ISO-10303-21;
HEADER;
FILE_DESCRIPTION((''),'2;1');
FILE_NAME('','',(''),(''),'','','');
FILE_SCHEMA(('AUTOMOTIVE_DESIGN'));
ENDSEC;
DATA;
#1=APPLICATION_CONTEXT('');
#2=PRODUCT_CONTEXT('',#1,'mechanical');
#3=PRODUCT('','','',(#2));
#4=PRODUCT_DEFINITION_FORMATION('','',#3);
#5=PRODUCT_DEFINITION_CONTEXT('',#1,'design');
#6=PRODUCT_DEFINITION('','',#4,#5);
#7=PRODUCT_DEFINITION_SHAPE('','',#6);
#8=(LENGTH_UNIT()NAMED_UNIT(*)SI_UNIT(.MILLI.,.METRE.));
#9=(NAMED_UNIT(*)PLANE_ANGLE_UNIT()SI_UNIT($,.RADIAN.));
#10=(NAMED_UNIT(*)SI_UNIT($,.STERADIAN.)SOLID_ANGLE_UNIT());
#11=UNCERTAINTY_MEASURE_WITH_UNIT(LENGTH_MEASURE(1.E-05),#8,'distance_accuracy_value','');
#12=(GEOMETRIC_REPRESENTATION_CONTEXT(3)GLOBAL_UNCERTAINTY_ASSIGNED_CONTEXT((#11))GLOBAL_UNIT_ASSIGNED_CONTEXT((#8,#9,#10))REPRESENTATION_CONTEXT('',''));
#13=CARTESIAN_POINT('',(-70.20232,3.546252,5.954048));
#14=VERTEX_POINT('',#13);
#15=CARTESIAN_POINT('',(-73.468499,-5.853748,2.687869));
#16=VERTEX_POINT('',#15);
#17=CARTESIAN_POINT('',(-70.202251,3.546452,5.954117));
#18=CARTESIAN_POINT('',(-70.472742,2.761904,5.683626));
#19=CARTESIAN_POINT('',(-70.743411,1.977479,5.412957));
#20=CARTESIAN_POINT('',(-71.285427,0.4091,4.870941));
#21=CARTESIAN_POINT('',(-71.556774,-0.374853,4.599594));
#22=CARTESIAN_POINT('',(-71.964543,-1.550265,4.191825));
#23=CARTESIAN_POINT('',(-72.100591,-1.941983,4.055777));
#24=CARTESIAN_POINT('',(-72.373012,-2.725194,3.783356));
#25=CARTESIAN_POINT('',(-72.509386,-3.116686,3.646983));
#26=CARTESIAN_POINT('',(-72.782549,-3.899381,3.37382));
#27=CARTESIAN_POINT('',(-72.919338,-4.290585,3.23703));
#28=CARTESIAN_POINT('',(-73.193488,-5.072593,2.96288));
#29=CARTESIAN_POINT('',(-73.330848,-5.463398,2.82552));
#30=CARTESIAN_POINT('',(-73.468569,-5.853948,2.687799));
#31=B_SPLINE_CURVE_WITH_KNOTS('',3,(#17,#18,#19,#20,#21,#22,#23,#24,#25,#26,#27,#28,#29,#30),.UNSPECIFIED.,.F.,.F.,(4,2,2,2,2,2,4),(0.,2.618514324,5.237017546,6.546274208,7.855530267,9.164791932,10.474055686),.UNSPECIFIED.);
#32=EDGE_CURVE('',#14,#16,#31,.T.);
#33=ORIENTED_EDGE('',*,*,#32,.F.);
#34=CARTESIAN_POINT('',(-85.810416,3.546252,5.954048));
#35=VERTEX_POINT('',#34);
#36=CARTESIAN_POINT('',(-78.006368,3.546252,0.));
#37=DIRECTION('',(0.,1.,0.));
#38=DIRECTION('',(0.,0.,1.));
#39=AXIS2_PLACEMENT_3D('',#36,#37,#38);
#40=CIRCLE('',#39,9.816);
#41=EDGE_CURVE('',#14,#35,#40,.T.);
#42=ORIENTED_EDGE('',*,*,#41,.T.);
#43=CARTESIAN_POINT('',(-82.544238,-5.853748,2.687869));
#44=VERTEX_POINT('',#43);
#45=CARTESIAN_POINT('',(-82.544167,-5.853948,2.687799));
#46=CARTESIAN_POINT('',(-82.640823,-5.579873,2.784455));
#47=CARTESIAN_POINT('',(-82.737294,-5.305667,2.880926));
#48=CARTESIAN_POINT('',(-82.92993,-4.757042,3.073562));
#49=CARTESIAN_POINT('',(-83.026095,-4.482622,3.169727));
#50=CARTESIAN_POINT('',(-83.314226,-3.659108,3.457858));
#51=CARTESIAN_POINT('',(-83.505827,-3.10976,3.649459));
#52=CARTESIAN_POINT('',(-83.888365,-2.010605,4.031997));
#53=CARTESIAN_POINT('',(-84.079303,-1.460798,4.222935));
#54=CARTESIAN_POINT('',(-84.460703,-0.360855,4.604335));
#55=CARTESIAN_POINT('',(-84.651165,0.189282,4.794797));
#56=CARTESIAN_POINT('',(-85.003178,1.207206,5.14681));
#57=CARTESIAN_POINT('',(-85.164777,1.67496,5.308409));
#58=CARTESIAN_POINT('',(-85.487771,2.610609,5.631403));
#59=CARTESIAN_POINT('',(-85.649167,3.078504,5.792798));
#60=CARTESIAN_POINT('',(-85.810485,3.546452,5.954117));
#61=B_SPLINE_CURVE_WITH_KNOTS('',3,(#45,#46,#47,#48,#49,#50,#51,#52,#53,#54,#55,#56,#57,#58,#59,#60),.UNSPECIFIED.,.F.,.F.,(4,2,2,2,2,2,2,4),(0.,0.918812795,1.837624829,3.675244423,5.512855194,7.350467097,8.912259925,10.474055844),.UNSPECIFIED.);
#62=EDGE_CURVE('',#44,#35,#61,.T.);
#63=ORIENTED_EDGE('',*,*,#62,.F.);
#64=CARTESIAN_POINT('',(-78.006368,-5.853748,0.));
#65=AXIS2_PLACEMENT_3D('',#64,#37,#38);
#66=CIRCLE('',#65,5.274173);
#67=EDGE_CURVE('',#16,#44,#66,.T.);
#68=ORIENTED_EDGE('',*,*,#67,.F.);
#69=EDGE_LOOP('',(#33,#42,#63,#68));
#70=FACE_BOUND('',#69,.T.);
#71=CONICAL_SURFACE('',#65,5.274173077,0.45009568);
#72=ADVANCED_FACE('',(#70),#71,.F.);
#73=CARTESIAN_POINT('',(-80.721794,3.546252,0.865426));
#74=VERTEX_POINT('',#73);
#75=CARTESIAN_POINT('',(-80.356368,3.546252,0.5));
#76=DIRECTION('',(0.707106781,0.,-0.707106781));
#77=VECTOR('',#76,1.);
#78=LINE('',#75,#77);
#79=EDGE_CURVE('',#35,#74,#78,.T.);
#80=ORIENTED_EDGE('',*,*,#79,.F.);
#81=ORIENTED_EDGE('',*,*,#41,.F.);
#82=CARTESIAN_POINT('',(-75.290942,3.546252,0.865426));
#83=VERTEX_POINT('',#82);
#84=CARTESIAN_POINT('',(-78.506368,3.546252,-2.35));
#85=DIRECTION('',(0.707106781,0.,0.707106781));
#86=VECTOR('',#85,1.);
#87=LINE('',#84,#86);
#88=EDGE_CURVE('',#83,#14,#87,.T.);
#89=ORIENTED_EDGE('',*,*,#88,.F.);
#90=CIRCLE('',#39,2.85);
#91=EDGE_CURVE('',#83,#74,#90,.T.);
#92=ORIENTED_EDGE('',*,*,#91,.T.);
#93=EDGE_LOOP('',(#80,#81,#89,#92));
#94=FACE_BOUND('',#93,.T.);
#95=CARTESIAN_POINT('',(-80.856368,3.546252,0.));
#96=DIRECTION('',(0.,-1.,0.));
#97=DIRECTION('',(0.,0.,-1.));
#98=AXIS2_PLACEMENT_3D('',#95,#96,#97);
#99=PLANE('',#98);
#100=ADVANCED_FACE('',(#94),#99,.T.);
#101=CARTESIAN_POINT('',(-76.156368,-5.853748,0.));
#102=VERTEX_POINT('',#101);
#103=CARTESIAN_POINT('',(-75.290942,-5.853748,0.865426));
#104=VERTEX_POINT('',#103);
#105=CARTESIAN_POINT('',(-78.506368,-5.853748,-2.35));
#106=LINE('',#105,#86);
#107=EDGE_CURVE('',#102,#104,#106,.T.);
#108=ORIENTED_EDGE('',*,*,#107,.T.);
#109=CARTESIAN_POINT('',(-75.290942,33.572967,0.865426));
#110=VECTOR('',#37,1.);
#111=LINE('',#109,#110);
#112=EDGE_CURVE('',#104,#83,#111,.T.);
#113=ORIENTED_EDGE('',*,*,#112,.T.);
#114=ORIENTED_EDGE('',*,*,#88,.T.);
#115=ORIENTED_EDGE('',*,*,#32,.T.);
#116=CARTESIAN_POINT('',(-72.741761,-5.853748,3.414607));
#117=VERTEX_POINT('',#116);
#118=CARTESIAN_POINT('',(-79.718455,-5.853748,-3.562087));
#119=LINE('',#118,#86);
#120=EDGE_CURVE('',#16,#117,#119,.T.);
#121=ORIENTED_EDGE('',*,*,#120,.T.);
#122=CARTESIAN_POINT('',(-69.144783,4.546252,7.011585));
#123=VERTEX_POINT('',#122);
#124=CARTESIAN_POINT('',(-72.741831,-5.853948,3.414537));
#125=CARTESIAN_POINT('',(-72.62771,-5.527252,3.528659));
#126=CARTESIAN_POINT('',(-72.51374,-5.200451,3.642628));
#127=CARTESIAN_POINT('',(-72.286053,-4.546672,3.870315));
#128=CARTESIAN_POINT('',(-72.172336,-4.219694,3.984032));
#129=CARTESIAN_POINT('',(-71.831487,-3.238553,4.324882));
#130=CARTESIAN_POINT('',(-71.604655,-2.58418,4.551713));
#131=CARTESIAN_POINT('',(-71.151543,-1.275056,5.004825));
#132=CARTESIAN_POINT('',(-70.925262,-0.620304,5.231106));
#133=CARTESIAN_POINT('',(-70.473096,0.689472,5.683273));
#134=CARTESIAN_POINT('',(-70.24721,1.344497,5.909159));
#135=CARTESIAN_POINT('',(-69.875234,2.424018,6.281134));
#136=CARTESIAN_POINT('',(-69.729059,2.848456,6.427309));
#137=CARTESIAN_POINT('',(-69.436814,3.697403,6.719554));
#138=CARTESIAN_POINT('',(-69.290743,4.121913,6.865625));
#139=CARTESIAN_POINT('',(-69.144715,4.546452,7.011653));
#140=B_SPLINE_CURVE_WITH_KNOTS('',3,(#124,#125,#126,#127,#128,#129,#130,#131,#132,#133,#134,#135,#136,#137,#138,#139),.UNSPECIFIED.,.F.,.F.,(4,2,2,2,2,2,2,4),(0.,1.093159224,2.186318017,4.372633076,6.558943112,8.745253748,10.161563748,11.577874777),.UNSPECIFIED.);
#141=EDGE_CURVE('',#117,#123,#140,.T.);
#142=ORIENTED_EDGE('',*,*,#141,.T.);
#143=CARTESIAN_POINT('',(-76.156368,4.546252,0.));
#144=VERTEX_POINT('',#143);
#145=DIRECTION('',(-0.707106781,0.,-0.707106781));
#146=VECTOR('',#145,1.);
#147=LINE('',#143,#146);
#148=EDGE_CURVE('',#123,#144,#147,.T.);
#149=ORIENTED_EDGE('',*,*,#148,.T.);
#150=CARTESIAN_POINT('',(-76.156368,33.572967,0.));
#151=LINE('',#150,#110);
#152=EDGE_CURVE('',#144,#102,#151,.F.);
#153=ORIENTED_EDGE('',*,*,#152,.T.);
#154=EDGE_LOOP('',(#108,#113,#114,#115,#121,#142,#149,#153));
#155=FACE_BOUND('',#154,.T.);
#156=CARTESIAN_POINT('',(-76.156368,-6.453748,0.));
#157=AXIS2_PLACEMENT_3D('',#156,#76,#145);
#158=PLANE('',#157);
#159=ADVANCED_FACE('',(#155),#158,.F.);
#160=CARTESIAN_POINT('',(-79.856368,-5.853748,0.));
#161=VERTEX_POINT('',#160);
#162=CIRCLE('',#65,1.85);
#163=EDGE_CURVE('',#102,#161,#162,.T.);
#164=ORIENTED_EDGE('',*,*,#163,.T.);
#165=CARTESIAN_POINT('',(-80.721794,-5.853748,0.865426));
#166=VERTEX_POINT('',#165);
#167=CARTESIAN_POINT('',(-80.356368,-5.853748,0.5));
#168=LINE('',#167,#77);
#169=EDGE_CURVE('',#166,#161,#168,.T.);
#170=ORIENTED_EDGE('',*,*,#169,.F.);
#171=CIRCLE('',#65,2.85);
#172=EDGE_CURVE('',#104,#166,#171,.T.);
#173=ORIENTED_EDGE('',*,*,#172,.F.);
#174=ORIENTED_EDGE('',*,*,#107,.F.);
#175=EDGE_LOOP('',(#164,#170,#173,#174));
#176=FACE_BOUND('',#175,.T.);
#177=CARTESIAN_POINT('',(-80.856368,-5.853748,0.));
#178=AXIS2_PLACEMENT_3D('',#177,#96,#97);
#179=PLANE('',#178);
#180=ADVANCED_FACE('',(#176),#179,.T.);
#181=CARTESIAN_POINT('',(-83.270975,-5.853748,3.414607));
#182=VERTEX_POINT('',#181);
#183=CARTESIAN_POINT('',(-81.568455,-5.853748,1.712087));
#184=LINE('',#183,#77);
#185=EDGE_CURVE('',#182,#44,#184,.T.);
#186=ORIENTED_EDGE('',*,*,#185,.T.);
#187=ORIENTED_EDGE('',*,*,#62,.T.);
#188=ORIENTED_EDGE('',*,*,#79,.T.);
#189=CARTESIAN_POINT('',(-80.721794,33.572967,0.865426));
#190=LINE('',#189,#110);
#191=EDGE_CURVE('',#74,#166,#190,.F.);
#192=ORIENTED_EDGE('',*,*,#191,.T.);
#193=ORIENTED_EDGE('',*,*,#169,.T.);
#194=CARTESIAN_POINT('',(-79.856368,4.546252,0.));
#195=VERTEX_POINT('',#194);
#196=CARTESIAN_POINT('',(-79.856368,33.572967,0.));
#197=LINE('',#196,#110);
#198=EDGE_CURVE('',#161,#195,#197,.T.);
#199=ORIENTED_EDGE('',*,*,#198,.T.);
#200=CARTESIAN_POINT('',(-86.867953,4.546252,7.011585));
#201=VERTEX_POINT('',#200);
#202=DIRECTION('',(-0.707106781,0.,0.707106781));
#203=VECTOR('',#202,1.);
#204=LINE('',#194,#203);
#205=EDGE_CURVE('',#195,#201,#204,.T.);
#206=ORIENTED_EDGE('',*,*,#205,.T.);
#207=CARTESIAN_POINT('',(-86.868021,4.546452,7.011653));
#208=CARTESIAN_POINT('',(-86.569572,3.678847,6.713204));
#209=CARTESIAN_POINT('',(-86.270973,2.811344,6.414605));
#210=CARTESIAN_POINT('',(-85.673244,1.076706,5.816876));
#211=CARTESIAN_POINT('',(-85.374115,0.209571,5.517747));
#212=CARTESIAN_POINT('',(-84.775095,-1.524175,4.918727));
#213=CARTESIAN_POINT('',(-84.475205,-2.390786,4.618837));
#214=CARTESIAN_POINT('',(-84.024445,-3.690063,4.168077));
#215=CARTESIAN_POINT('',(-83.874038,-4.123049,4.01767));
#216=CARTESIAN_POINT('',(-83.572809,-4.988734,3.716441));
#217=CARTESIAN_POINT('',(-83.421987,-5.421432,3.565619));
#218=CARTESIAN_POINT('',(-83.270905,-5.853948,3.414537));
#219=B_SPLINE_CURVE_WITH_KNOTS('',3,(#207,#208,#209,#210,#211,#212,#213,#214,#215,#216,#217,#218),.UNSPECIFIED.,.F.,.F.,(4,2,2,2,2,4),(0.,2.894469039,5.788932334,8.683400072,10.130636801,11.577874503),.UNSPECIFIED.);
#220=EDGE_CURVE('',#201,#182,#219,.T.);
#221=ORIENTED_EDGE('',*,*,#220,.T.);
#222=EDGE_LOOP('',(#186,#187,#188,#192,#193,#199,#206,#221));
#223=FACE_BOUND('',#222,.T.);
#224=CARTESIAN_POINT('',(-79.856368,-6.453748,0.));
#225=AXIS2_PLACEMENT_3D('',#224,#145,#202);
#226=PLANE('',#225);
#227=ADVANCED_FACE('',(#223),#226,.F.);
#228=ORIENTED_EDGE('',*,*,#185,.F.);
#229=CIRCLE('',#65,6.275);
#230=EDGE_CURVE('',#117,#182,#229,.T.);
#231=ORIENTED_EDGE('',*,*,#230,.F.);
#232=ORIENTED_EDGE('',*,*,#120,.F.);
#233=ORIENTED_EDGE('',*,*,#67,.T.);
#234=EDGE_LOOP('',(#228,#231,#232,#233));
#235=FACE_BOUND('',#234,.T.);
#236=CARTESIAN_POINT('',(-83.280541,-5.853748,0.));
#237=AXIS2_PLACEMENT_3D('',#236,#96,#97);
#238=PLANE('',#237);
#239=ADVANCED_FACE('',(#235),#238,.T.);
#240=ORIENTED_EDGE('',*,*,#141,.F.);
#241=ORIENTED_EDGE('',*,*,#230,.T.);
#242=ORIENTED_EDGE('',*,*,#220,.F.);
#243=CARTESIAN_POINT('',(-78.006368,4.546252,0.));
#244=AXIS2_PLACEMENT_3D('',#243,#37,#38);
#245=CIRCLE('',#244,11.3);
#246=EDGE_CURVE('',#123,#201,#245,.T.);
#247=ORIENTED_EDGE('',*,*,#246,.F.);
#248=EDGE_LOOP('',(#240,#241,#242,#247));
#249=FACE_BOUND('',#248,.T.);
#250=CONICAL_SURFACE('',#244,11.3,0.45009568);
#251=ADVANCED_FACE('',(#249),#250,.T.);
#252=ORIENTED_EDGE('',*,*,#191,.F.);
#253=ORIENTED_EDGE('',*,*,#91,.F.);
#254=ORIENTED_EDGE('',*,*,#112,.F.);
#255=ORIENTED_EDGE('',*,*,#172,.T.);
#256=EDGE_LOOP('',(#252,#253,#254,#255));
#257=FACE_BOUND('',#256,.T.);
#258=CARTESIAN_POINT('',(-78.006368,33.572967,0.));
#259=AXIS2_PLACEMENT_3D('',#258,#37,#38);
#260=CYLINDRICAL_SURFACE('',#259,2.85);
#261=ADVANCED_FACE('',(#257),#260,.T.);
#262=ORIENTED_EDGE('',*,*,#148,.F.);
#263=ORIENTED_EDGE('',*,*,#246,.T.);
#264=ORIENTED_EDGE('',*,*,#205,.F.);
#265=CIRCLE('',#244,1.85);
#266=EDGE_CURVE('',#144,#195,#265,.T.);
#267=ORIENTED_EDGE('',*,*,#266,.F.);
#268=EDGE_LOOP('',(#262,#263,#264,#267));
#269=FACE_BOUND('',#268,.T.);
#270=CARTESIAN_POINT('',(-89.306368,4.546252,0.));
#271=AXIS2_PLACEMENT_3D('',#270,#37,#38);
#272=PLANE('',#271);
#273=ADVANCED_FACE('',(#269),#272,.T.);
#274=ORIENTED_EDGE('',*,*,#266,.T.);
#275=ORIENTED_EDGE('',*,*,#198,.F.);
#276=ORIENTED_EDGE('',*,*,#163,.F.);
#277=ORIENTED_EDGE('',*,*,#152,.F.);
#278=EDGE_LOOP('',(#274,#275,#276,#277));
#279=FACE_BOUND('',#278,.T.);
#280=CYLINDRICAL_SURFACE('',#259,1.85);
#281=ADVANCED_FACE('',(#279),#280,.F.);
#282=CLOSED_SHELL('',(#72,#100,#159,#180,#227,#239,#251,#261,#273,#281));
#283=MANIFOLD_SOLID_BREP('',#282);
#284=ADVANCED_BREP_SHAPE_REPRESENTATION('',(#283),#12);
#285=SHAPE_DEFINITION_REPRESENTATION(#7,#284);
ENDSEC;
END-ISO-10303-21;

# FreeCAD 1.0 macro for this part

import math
import FreeCAD as App
import Part
import Sketcher
from FreeCAD import Vector

doc = App.newDocument("Part")
body = doc.addObject("PartDesign::Body", "Body")

sketch1 = body.newObject("Sketcher::SketchObject", "Sketch")
sketch1.AttachmentSupport = (doc.getObject("XY_Plane"), [""])
sketch1.MapMode = "FlatFace"
sketch1.addGeometry([
    Part.LineSegment(Vector(-89.306368, 4.546252, 0), Vector(-84.281368, -5.853748, 0)),
    Part.LineSegment(Vector(-84.281368, -5.853748, 0), Vector(-83.280541, -5.853748, 0)),
    Part.LineSegment(Vector(-83.280541, -5.853748, 0), Vector(-87.822368, 3.546252, 0)),
    Part.LineSegment(Vector(-87.822368, 3.546252, 0), Vector(-80.856368, 3.546252, 0)),
    Part.LineSegment(Vector(-80.856368, 3.546252, 0), Vector(-80.856368, -5.853748, 0)),
    Part.LineSegment(Vector(-80.856368, -5.853748, 0), Vector(-79.856368, -5.853748, 0)),
    Part.LineSegment(Vector(-79.856368, -5.853748, 0), Vector(-79.856368, 4.546252, 0)),
    Part.LineSegment(Vector(-79.856368, 4.546252, 0), Vector(-89.306368, 4.546252, 0)),
], False)
sketch1.addGeometry(Part.LineSegment(Vector(-78.006368, 4.546252, 0), Vector(-78.006368, -5.853748, 0)), True)
sketch1.addConstraint([
    Sketcher.Constraint("Coincident", 0, 2, 1, 1),
    Sketcher.Constraint("Coincident", 1, 2, 2, 1),
    Sketcher.Constraint("Coincident", 2, 2, 3, 1),
    Sketcher.Constraint("Coincident", 3, 2, 4, 1),
    Sketcher.Constraint("Coincident", 4, 2, 5, 1),
    Sketcher.Constraint("Coincident", 5, 2, 6, 1),
    Sketcher.Constraint("Coincident", 6, 2, 7, 1),
    Sketcher.Constraint("Coincident", 7, 2, 0, 1),
    Sketcher.Constraint("Horizontal", 1),
    Sketcher.Constraint("Horizontal", 3),
    Sketcher.Constraint("Vertical", 4),
    Sketcher.Constraint("Horizontal", 5),
    Sketcher.Constraint("Vertical", 6),
    Sketcher.Constraint("Horizontal", 7),
    Sketcher.Constraint("Vertical", 8),
    Sketcher.Constraint("Parallel", 0, 2),
    Sketcher.Constraint("Horizontal", 1, 2, 4, 2),
    Sketcher.Constraint("Horizontal", 7, 2, 8, 1),
    Sketcher.Constraint("Horizontal", 5, 2, 8, 2),
    Sketcher.Constraint("DistanceX", 5, 1, 5, 2, 1.0),
    Sketcher.Constraint("DistanceY", 4, 2, 4, 1, 9.4),
    Sketcher.Constraint("DistanceY", 6, 1, 6, 2, 10.4),
    Sketcher.Constraint("DistanceX", 7, 2, 7, 1, 9.45),
    Sketcher.Constraint("DistanceX", 3, 1, 3, 2, 6.966),
    Sketcher.Constraint("DistanceX", 6, 2, 8, 1, 1.85),
    Sketcher.Constraint("DistanceX", 2, 2, 0, 2, 3.541),
    Sketcher.Constraint("DistanceX", 0, 2, -1, 1, 84.281368),
    Sketcher.Constraint("DistanceY", 0, 2, -1, 1, 5.853748),
])
revolution = body.newObject("PartDesign::Revolution", "Revolution")
revolution.Profile = sketch1
revolution.ReferenceAxis = (sketch1, ["Axis0"])
revolution.Angle = 360

sketch2 = body.newObject("Sketcher::SketchObject", "Sketch001")
sketch2.AttachmentSupport = (doc.getObject("XZ_Plane"), [""])
sketch2.MapMode = "FlatFace"
sketch2.AttachmentOffset = App.Placement(Vector(0, 0, -4.546252), App.Rotation())
sketch2.addGeometry([
    Part.LineSegment(Vector(-69.144783, 7.011585, 0), Vector(-76.156368, 0, 0)),
    Part.ArcOfCircle(Part.Circle(Vector(-78.006368, 0, 0), Vector(0, 0, 1), 1.85), math.radians(0), math.radians(180)),
    Part.LineSegment(Vector(-79.856368, 0, 0), Vector(-86.867953, 7.011585, 0)),
    Part.ArcOfCircle(Part.Circle(Vector(-78.006368, 0, 0), Vector(0, 0, 1), 11.3), math.radians(38.352233), math.radians(141.647767)),
], False)
sketch2.addConstraint([
    Sketcher.Constraint("Coincident", 0, 2, 1, 1),
    Sketcher.Constraint("Coincident", 1, 2, 2, 1),
    Sketcher.Constraint("Coincident", 2, 2, 3, 2),
    Sketcher.Constraint("Coincident", 3, 1, 0, 1),
    Sketcher.Constraint("Coincident", 3, 3, 1, 3),
    Sketcher.Constraint("PointOnObject", 1, 3, -1),
    Sketcher.Constraint("PointOnObject", 0, 2, -1),
    Sketcher.Constraint("PointOnObject", 1, 2, -1),
    Sketcher.Constraint("Perpendicular", 0, 2),
    Sketcher.Constraint("Horizontal", 2, 2, 3, 1),
    Sketcher.Constraint("Radius", 3, 11.3),
    Sketcher.Constraint("Radius", 1, 1.85),
    Sketcher.Constraint("DistanceX", 1, 3, -1, 1, 78.006368),
])
pocket1 = body.newObject("PartDesign::Pocket", "Pocket")
pocket1.Profile = sketch2
pocket1.Length = 11
pocket1.Reversed = True

doc.recompute()
